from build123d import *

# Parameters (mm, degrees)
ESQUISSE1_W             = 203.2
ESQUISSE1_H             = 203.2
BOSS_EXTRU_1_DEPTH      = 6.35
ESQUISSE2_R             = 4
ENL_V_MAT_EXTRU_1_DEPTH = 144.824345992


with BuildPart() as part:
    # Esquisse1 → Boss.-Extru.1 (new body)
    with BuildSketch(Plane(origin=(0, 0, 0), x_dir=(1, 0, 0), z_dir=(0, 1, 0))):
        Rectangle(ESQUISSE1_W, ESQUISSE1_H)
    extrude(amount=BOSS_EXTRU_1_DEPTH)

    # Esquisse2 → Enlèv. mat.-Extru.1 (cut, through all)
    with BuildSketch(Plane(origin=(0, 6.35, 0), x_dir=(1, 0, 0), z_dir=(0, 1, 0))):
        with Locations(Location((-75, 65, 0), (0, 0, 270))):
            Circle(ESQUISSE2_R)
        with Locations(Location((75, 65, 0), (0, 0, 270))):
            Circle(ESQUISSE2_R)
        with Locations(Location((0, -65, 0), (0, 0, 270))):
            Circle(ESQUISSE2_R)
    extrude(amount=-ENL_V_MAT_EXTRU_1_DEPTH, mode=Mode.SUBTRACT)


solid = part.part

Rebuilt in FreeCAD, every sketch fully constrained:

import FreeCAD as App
import Part
import Sketcher
Q = App.Units.Quantity


def add_polygon(sketch, points):
    """Adds a closed chain of lines whose ends are joined by coincident constraints."""
    first, n = sketch.GeometryCount, len(points)
    for a, b in zip(points, points[1:] + points[:1]):
        sketch.addGeometry(Part.LineSegment(App.Vector(*a, 0), App.Vector(*b, 0)), False)
    for i in range(n):
        sketch.addConstraint(Sketcher.Constraint("Coincident", first + i, 2, first + (i + 1) % n, 1))

doc = App.newDocument("Part")
body = doc.addObject("PartDesign::Body", "Body")

# Sketch on XZ plane
sketch1 = body.newObject("Sketcher::SketchObject", "Sketch")
sketch1.AttachmentSupport = (doc.getObject("XZ_Plane"), [""])
sketch1.MapMode = "FlatFace"
add_polygon(sketch1, [(-101.6, -101.6), (-101.6, 101.6), (101.6, 101.6), (101.6, -101.6)])  # lines 0-3
sketch1.addConstraint([
    Sketcher.Constraint("Vertical", 0),
    Sketcher.Constraint("Horizontal", 1),
    Sketcher.Constraint("Vertical", 2),
    Sketcher.Constraint("Horizontal", 3),
    Sketcher.Constraint("Symmetric", 0, 2, 2, 2, -1, 1),
    Sketcher.Constraint("Equal", 3, 0),
    Sketcher.Constraint("DistanceX", 1, 1, 1, 2, Q("8 in")),
])
pad1 = body.newObject("PartDesign::Pad", "Pad")
pad1.Profile = sketch1
pad1.Length = Q("0.25 in")
pad1.Reversed = True

# Sketch on XZ plane
sketch2 = body.newObject("Sketcher::SketchObject", "Sketch001")
sketch2.AttachmentSupport = (doc.getObject("XZ_Plane"), [""])
sketch2.MapMode = "FlatFace"
sketch2.AttachmentOffset = App.Placement(App.Vector(0, 0, -0.25 * 25.4), App.Rotation())
sketch2.addGeometry([
    Part.Circle(App.Vector(-75, -65, 0), App.Vector(0, 0, 1), 4),
    Part.Circle(App.Vector(75, -65, 0), App.Vector(0, 0, 1), 4),
    Part.Circle(App.Vector(0, 65, 0), App.Vector(0, 0, 1), 4),
], False)
sketch2.addConstraint([
    Sketcher.Constraint("Equal", 0, 1),
    Sketcher.Constraint("Equal", 1, 2),
    Sketcher.Constraint("Symmetric", 0, 3, 1, 3, -2),
    Sketcher.Constraint("PointOnObject", 2, 3, -2),
    Sketcher.Constraint("Diameter", 0, Q("8 mm")),
    Sketcher.Constraint("DistanceX", 0, 3, -1, 1, Q("75 mm")),
    Sketcher.Constraint("DistanceY", 0, 3, -1, 1, Q("65 mm")),
    Sketcher.Constraint("DistanceY", -1, 1, 2, 3, Q("65 mm")),
])
pocket1 = body.newObject("PartDesign::Pocket", "Pocket")
pocket1.Profile = sketch2
pocket1.Type = "ThroughAll"
pocket1.Reversed = True

doc.recompute()
